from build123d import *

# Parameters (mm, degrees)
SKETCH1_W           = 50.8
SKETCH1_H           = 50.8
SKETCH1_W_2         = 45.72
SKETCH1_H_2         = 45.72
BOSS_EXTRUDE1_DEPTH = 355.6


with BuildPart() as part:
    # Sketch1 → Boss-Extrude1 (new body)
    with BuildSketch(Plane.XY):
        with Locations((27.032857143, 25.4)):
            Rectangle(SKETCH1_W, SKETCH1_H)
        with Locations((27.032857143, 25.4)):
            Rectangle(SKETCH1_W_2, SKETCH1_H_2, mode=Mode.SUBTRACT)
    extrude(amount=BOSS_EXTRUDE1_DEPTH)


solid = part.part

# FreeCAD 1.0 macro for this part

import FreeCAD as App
import Part
import Sketcher
from FreeCAD import Vector
Q = App.Units.Quantity

doc = App.newDocument("Part")
params = doc.addObject("Spreadsheet::Sheet", "Params")
for row, (alias, value) in enumerate([
    ("sketch1_width", "2 in"),
    ("sketch1_width2", "1.8 in"),
    ("pad1_length", "14 in"),
], start=1):
    params.set(f"A{row}", alias)
    params.set(f"B{row}", "=" + value)
    params.setAlias(f"B{row}", alias)

body = doc.addObject("PartDesign::Body", "Body")

# Sketch on XY plane
sketch1 = doc.addObject("Sketcher::SketchObject", "Sketch")
body.addObject(sketch1)
sketch1.AttachmentSupport = (doc.XY_Plane, [""])
sketch1.MapMode = "FlatFace"
sketch1.addGeometry([
    Part.LineSegment(Vector(2, 51, 0), Vector(2, 0, 0)),  # 0
    Part.LineSegment(Vector(2, 0, 0), Vector(52, 0, 0)),  # 1
    Part.LineSegment(Vector(52, 0, 0), Vector(52, 51, 0)),  # 2
    Part.LineSegment(Vector(52, 51, 0), Vector(2, 51, 0)),  # 3
    Part.LineSegment(Vector(50, 3, 0), Vector(4, 3, 0)),  # 4
    Part.LineSegment(Vector(4, 3, 0), Vector(4, 48, 0)),  # 5
    Part.LineSegment(Vector(4, 48, 0), Vector(50, 48, 0)),  # 6
    Part.LineSegment(Vector(50, 48, 0), Vector(50, 3, 0)),  # 7
], False)
sketch1.addConstraint([
    Sketcher.Constraint("Coincident", 0, 2, 1, 1),
    Sketcher.Constraint("Coincident", 1, 2, 2, 1),
    Sketcher.Constraint("Coincident", 2, 2, 3, 1),
    Sketcher.Constraint("Coincident", 3, 2, 0, 1),
    Sketcher.Constraint("Coincident", 4, 2, 5, 1),
    Sketcher.Constraint("Coincident", 5, 2, 6, 1),
    Sketcher.Constraint("Coincident", 6, 2, 7, 1),
    Sketcher.Constraint("Coincident", 7, 2, 4, 1),
    Sketcher.Constraint("Vertical", 0),
    Sketcher.Constraint("Horizontal", 1),
    Sketcher.Constraint("Vertical", 2),
    Sketcher.Constraint("Horizontal", 3),
    Sketcher.Constraint("Horizontal", 4),
    Sketcher.Constraint("Vertical", 5),
    Sketcher.Constraint("Horizontal", 6),
    Sketcher.Constraint("Vertical", 7),
    Sketcher.Constraint("PointOnObject", 0, 2, -1),
    Sketcher.Constraint("Equal", 3, 0),
    Sketcher.Constraint("Equal", 6, 5),
    Sketcher.Constraint("DistanceX", 1, 1, 1, 2, Q("2 in")),
    Sketcher.Constraint("DistanceX", 4, 2, 4, 1, Q("1.8 in")),
    Sketcher.Constraint("DistanceY", -1, 1, 4, 2, Q("0.1 in")),
    Sketcher.Constraint("DistanceX", 0, 2, 4, 2, Q("0.1 in")),
    Sketcher.Constraint("DistanceX", -1, 1, 0, 2, 1.632857),
])
sketch1.setExpression("Constraints[19]", "Params.sketch1_width")
sketch1.setExpression("Constraints[20]", "Params.sketch1_width2")
pad1 = doc.addObject("PartDesign::Pad", "Pad")
body.addObject(pad1)
pad1.Profile = sketch1
pad1.setExpression("Length", "Params.pad1_length")

doc.recompute()
